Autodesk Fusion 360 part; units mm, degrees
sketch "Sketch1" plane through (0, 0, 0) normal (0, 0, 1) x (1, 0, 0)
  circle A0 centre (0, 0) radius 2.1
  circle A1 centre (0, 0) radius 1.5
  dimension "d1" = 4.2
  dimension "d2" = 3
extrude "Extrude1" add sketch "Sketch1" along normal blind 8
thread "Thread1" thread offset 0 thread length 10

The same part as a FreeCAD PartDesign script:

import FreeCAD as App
import Part
import Sketcher
from FreeCAD import Vector

doc = App.newDocument("Part")
body = doc.addObject("PartDesign::Body", "Body")

sketch1 = doc.addObject("Sketcher::SketchObject", "Sketch")
body.addObject(sketch1)
sketch1.AttachmentSupport = (doc.XY_Plane, [""])
sketch1.MapMode = "FlatFace"
sketch1.addGeometry([
    Part.Circle(Vector(0, 0, 0), Vector(0, 0, 1), 2.1),
    Part.Circle(Vector(0, 0, 0), Vector(0, 0, 1), 1.5),
], False)
sketch1.addConstraint([
    Sketcher.Constraint("Coincident", 0, 3, -1, 1),
    Sketcher.Constraint("Coincident", 1, 3, -1, 1),
    Sketcher.Constraint("Diameter", 1, 3.0),
    Sketcher.Constraint("Diameter", 0, 4.2),
])
pad1 = doc.addObject("PartDesign::Pad", "Pad")
body.addObject(pad1)
pad1.Profile = sketch1
pad1.Length = 8

doc.recompute()
